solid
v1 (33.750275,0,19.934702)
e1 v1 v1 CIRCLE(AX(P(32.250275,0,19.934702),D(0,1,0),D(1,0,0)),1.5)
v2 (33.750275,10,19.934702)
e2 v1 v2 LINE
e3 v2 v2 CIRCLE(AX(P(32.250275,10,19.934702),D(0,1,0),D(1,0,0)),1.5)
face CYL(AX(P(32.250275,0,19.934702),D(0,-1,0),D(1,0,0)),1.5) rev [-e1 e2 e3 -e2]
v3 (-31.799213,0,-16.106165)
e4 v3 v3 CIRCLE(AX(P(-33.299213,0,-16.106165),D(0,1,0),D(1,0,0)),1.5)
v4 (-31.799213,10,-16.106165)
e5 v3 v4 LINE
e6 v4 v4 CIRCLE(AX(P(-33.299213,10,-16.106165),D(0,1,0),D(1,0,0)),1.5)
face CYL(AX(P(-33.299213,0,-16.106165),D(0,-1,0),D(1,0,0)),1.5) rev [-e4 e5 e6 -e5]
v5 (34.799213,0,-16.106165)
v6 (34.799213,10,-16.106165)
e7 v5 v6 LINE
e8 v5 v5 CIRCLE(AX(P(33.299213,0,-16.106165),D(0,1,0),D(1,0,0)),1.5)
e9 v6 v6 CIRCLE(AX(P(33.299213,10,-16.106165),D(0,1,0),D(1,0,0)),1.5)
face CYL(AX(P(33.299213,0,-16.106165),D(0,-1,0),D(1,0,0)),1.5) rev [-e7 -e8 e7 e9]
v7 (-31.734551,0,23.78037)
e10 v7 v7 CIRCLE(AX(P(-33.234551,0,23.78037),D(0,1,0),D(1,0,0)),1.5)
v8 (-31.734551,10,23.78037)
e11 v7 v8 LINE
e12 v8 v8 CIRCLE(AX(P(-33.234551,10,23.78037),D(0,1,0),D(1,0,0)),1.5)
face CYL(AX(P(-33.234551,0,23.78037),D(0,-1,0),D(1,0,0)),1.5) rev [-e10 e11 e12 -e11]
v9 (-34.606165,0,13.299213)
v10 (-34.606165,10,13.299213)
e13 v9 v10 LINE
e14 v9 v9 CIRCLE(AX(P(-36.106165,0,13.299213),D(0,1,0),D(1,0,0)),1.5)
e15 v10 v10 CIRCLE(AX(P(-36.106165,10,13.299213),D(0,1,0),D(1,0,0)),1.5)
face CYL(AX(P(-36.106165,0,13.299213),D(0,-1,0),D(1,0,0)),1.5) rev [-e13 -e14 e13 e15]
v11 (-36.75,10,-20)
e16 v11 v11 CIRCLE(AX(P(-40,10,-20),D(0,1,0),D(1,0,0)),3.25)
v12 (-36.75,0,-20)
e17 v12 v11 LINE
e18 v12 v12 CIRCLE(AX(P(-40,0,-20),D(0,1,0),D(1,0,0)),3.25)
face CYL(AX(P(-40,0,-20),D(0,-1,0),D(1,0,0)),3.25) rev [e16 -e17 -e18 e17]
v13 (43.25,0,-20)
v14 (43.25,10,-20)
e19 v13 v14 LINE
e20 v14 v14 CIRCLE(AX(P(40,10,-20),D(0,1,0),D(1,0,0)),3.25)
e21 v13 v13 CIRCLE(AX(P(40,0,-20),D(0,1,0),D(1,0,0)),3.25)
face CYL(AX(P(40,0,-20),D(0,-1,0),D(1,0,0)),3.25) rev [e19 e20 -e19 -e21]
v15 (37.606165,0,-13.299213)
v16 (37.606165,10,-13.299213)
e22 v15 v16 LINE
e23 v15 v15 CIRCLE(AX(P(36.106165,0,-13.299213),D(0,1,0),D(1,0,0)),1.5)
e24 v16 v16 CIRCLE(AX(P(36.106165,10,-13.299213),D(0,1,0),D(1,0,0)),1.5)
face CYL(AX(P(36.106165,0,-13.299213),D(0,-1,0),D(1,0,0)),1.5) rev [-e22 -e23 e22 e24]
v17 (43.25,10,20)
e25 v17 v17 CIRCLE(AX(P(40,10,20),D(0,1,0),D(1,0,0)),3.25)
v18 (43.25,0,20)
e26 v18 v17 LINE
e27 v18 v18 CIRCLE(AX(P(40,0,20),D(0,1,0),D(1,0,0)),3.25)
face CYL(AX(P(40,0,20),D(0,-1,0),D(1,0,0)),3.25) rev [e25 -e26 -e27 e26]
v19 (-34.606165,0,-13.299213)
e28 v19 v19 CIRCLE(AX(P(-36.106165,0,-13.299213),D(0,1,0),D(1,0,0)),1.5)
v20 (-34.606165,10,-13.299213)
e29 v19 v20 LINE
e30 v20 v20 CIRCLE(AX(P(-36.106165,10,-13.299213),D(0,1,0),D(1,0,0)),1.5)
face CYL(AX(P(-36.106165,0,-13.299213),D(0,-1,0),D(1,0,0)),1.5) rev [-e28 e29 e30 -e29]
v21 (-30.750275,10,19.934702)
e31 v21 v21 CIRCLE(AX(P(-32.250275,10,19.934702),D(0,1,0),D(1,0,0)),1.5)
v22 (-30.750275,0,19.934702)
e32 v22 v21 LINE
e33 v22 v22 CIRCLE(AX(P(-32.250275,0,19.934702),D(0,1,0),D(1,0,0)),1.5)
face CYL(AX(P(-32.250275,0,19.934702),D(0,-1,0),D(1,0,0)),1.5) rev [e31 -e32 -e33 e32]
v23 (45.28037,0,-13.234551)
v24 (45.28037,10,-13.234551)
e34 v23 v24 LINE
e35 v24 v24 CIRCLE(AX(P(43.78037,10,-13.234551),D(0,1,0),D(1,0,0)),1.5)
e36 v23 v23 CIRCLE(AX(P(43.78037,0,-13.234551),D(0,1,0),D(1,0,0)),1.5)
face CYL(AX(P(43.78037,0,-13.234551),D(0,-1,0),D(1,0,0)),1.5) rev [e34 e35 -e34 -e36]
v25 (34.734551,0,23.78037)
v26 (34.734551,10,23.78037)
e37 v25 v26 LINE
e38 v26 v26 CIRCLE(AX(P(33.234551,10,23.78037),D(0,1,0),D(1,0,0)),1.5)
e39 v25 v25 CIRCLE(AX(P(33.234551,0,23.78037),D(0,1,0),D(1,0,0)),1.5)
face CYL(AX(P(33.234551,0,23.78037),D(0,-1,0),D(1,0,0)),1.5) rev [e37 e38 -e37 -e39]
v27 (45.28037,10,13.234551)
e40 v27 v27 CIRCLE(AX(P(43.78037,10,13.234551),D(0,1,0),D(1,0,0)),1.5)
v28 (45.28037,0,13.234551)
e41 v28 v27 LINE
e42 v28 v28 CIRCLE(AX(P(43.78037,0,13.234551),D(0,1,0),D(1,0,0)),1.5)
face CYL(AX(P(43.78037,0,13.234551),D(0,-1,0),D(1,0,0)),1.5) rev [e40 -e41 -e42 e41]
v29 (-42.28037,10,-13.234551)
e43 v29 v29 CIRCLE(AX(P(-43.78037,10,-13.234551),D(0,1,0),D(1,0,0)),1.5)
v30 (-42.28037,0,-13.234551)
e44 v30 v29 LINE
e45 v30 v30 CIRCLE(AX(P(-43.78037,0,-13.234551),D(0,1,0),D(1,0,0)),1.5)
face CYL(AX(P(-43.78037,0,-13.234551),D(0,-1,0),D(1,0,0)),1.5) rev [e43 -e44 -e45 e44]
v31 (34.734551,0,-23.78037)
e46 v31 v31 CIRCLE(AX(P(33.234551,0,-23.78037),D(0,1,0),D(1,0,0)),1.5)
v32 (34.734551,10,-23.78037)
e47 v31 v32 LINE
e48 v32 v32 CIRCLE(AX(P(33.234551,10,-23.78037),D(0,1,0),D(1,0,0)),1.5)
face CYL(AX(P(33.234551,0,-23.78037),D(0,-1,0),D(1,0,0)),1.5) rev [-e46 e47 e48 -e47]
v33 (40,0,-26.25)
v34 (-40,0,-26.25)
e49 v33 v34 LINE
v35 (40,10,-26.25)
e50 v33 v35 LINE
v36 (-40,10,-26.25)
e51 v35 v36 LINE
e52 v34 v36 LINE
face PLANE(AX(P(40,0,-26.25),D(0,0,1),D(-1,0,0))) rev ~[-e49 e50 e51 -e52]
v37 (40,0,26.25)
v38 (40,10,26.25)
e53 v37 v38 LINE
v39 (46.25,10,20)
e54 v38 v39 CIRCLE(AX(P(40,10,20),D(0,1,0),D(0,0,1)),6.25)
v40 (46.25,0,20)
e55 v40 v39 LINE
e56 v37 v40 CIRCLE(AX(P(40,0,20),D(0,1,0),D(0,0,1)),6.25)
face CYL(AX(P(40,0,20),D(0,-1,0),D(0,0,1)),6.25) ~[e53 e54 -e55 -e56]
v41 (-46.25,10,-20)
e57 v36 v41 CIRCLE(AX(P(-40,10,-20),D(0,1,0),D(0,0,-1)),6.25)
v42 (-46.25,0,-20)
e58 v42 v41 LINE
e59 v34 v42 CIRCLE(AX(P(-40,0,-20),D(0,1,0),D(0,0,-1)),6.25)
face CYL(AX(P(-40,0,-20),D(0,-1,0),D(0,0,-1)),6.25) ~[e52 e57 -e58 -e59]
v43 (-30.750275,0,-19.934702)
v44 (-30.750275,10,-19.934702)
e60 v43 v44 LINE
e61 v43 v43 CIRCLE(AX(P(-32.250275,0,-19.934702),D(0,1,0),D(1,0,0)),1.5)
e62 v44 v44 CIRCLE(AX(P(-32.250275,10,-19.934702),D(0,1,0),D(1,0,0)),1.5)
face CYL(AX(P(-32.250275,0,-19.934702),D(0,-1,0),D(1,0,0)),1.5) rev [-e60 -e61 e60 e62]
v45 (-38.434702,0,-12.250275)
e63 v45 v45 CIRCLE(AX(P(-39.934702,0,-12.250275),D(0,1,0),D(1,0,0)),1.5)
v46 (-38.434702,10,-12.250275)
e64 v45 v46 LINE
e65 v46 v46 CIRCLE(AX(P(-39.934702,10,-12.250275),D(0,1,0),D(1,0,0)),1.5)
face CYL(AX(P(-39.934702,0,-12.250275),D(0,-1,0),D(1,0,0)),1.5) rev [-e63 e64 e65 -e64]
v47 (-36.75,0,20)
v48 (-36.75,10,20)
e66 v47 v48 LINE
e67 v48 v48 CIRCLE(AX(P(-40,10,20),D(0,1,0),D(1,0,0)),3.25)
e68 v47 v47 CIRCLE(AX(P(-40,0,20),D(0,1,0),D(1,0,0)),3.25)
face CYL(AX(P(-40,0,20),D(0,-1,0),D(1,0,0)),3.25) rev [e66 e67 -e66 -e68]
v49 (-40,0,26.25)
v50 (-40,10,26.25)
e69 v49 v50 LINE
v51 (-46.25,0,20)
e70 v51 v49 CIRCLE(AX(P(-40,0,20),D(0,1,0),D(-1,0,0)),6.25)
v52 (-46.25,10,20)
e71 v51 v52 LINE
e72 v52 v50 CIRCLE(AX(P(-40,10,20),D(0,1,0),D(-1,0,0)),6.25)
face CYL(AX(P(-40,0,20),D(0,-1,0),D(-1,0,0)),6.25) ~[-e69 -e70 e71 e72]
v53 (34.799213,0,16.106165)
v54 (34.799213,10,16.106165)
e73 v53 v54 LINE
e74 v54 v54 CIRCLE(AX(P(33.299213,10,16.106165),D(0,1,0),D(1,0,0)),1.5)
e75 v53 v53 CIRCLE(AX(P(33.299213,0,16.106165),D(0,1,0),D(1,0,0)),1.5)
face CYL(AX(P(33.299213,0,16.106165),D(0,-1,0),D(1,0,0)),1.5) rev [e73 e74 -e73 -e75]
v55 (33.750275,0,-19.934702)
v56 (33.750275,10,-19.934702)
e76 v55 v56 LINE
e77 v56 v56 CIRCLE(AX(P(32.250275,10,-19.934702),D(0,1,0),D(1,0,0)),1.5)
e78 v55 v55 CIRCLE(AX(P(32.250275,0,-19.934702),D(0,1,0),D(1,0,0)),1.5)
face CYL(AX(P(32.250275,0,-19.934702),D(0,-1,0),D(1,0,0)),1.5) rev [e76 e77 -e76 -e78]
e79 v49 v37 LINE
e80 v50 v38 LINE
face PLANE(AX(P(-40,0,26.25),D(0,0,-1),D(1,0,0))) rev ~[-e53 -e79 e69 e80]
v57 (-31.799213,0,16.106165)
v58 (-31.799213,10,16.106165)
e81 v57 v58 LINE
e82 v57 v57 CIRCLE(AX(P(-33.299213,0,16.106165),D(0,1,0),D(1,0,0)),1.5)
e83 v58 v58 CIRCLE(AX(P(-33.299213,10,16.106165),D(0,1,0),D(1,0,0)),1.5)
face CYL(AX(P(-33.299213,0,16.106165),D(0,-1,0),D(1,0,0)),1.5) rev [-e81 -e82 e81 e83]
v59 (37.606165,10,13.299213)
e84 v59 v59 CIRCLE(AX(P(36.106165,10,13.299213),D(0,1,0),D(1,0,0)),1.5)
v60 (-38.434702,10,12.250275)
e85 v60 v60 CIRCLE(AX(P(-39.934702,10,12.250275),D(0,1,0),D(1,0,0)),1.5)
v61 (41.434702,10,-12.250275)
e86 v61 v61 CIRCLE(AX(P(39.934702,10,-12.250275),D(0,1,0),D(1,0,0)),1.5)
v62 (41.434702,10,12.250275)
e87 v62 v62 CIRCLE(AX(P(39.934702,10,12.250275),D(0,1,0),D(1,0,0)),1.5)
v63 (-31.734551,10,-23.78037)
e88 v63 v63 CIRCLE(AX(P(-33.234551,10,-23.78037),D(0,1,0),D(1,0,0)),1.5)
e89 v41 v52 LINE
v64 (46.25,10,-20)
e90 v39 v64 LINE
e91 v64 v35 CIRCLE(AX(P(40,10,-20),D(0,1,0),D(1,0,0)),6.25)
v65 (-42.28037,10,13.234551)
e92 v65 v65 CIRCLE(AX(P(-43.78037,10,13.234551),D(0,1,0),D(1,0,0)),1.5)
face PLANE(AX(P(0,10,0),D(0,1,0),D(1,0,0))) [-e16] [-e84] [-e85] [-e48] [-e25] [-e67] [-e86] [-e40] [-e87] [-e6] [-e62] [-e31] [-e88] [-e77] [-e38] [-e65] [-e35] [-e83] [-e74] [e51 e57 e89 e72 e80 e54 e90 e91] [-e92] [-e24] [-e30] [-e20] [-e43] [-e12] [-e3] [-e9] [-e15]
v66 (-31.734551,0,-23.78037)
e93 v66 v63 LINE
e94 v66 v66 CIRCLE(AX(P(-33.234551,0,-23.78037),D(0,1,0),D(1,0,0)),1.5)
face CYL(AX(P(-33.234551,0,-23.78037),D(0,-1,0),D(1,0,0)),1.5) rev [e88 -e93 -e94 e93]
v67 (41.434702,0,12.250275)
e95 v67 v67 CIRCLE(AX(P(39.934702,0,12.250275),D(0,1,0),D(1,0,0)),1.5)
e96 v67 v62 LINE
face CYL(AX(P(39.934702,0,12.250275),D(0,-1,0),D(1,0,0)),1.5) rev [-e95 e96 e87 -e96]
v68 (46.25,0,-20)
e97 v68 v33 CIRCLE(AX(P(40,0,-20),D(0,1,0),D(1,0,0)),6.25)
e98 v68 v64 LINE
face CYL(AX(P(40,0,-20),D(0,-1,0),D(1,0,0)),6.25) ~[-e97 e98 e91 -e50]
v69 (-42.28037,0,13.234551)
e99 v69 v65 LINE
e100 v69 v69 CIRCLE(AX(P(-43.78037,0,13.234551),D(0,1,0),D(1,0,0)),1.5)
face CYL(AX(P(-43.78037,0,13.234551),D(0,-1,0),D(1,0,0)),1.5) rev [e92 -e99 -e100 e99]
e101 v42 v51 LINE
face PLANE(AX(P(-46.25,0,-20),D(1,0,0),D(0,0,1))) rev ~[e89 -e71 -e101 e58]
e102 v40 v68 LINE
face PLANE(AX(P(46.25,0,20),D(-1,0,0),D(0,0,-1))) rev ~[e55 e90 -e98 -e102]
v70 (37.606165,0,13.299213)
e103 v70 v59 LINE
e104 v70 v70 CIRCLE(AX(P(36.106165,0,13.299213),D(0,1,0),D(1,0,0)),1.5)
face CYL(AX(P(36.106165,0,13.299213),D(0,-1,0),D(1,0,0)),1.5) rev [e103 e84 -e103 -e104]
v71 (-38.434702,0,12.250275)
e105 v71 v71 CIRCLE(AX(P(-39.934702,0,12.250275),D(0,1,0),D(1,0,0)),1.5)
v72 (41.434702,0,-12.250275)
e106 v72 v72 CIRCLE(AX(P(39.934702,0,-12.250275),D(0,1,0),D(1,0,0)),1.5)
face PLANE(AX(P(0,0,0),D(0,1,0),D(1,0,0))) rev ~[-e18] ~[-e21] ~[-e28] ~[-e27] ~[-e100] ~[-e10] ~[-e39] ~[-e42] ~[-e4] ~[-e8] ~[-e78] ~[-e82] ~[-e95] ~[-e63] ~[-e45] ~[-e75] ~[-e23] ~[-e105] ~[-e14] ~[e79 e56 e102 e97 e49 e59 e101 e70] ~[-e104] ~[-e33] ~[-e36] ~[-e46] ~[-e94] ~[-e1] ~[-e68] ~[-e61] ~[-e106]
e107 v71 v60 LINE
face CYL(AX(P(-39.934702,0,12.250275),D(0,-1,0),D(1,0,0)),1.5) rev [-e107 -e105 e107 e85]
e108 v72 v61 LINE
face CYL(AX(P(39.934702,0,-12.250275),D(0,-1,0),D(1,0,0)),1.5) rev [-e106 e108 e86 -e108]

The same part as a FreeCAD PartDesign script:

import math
import FreeCAD as App
import Part
import Sketcher

V = App.Vector

doc = App.newDocument("Part")
body = doc.addObject("PartDesign::Body", "Body")

# Sketch on XZ plane
sketch1 = body.newObject("Sketcher::SketchObject", "Sketch")
sketch1.AttachmentSupport = (doc.getObject("XZ_Plane"), [""])
sketch1.MapMode = "FlatFace"
sketch1.addGeometry(Part.LineSegment(V(-40, 26.2, 0), V(40, 26.2, 0)), False)
sketch1.addGeometry(Part.ArcOfCircle(Part.Circle(V(40, 20, 0), V(0, 0, 1), 6.3), math.radians(0), math.radians(90)), False)
sketch1.addGeometry(Part.LineSegment(V(46.2, 20, 0), V(46.2, -20, 0)), False)
sketch1.addGeometry(Part.ArcOfCircle(Part.Circle(V(40, -20, 0), V(0, 0, 1), 6.3), math.radians(-90), math.radians(0)), False)
sketch1.addGeometry(Part.LineSegment(V(40, -26.2, 0), V(-40, -26.2, 0)), False)
sketch1.addGeometry(Part.ArcOfCircle(Part.Circle(V(-40, -20, 0), V(0, 0, 1), 6.3), math.radians(-180), math.radians(-90)), False)
sketch1.addGeometry(Part.LineSegment(V(-46.2, -20, 0), V(-46.2, 20, 0)), False)
sketch1.addGeometry(Part.ArcOfCircle(Part.Circle(V(-40, 20, 0), V(0, 0, 1), 6.3), math.radians(90), math.radians(180)), False)
sketch1.addGeometry(Part.Circle(V(-40, 20, 0), V(0, 0, 1), 3.2), False)
sketch1.addGeometry(Part.Circle(V(-33.2, 23.8, 0), V(0, 0, 1), 1.5), False)
sketch1.addGeometry(Part.Circle(V(-32.3, 19.9, 0), V(0, 0, 1), 1.5), False)
sketch1.addGeometry(Part.Circle(V(-43.8, 13.2, 0), V(0, 0, 1), 1.5), False)
sketch1.addGeometry(Part.Circle(V(-36.1, 13.3, 0), V(0, 0, 1), 1.5), False)
sketch1.addGeometry(Part.Circle(V(-33.3, 16.1, 0), V(0, 0, 1), 1.5), False)
sketch1.addGeometry(Part.Circle(V(-39.9, 12.3, 0), V(0, 0, 1), 1.5), False)
sketch1.addGeometry(Part.Circle(V(33.2, 23.8, 0), V(0, 0, 1), 1.5), False)
sketch1.addGeometry(Part.Circle(V(32.3, 19.9, 0), V(0, 0, 1), 1.5), False)
sketch1.addGeometry(Part.Circle(V(40, 20, 0), V(0, 0, 1), 3.2), False)
sketch1.addGeometry(Part.Circle(V(33.3, 16.1, 0), V(0, 0, 1), 1.5), False)
sketch1.addGeometry(Part.Circle(V(36.1, 13.3, 0), V(0, 0, 1), 1.5), False)
sketch1.addGeometry(Part.Circle(V(43.8, 13.2, 0), V(0, 0, 1), 1.5), False)
sketch1.addGeometry(Part.Circle(V(39.9, 12.3, 0), V(0, 0, 1), 1.5), False)
sketch1.addGeometry(Part.Circle(V(-39.9, -12.3, 0), V(0, 0, 1), 1.5), False)
sketch1.addGeometry(Part.Circle(V(-43.8, -13.2, 0), V(0, 0, 1), 1.5), False)
sketch1.addGeometry(Part.Circle(V(-36.1, -13.3, 0), V(0, 0, 1), 1.5), False)
sketch1.addGeometry(Part.Circle(V(-33.3, -16.1, 0), V(0, 0, 1), 1.5), False)
sketch1.addGeometry(Part.Circle(V(-40, -20, 0), V(0, 0, 1), 3.2), False)
sketch1.addGeometry(Part.Circle(V(-32.3, -19.9, 0), V(0, 0, 1), 1.5), False)
sketch1.addGeometry(Part.Circle(V(-33.2, -23.8, 0), V(0, 0, 1), 1.5), False)
sketch1.addGeometry(Part.Circle(V(39.9, -12.3, 0), V(0, 0, 1), 1.5), False)
sketch1.addGeometry(Part.Circle(V(33.3, -16.1, 0), V(0, 0, 1), 1.5), False)
sketch1.addGeometry(Part.Circle(V(36.1, -13.3, 0), V(0, 0, 1), 1.5), False)
sketch1.addGeometry(Part.Circle(V(43.8, -13.2, 0), V(0, 0, 1), 1.5), False)
sketch1.addGeometry(Part.Circle(V(32.3, -19.9, 0), V(0, 0, 1), 1.5), False)
sketch1.addGeometry(Part.Circle(V(33.2, -23.8, 0), V(0, 0, 1), 1.5), False)
sketch1.addGeometry(Part.Circle(V(40, -20, 0), V(0, 0, 1), 3.2), False)
sketch1.addConstraint(Sketcher.Constraint("Tangent", 0, 2, 1, 2))
sketch1.addConstraint(Sketcher.Constraint("Tangent", 1, 1, 2, 1))
sketch1.addConstraint(Sketcher.Constraint("Tangent", 2, 2, 3, 2))
sketch1.addConstraint(Sketcher.Constraint("Tangent", 3, 1, 4, 1))
sketch1.addConstraint(Sketcher.Constraint("Tangent", 4, 2, 5, 2))
sketch1.addConstraint(Sketcher.Constraint("Tangent", 5, 1, 6, 1))
sketch1.addConstraint(Sketcher.Constraint("Tangent", 6, 2, 7, 2))
sketch1.addConstraint(Sketcher.Constraint("Tangent", 7, 1, 0, 1))
sketch1.addConstraint(Sketcher.Constraint("Horizontal", 0))
sketch1.addConstraint(Sketcher.Constraint("Vertical", 2))
sketch1.addConstraint(Sketcher.Constraint("Horizontal", 4))
sketch1.addConstraint(Sketcher.Constraint("Vertical", 6))
sketch1.addConstraint(Sketcher.Constraint("Coincident", 8, 3, 7, 3))
sketch1.addConstraint(Sketcher.Constraint("Coincident", 17, 3, 1, 3))
sketch1.addConstraint(Sketcher.Constraint("Coincident", 26, 3, 5, 3))
sketch1.addConstraint(Sketcher.Constraint("Coincident", 35, 3, 3, 3))
sketch1.addConstraint(Sketcher.Constraint("Equal", 1, 3))
sketch1.addConstraint(Sketcher.Constraint("Equal", 3, 5))
sketch1.addConstraint(Sketcher.Constraint("Equal", 5, 7))
sketch1.addConstraint(Sketcher.Constraint("Equal", 9, 10))
sketch1.addConstraint(Sketcher.Constraint("Equal", 10, 11))
sketch1.addConstraint(Sketcher.Constraint("Equal", 11, 12))
sketch1.addConstraint(Sketcher.Constraint("Equal", 12, 13))
sketch1.addConstraint(Sketcher.Constraint("Equal", 13, 14))
sketch1.addConstraint(Sketcher.Constraint("Equal", 14, 15))
sketch1.addConstraint(Sketcher.Constraint("Equal", 15, 16))
sketch1.addConstraint(Sketcher.Constraint("Equal", 8, 17))
sketch1.addConstraint(Sketcher.Constraint("Equal", 16, 18))
sketch1.addConstraint(Sketcher.Constraint("Equal", 18, 19))
sketch1.addConstraint(Sketcher.Constraint("Equal", 19, 20))
sketch1.addConstraint(Sketcher.Constraint("Equal", 20, 21))
sketch1.addConstraint(Sketcher.Constraint("Equal", 21, 22))
sketch1.addConstraint(Sketcher.Constraint("Equal", 22, 23))
sketch1.addConstraint(Sketcher.Constraint("Equal", 23, 24))
sketch1.addConstraint(Sketcher.Constraint("Equal", 24, 25))
sketch1.addConstraint(Sketcher.Constraint("Equal", 17, 26))
sketch1.addConstraint(Sketcher.Constraint("Equal", 25, 27))
sketch1.addConstraint(Sketcher.Constraint("Equal", 27, 28))
sketch1.addConstraint(Sketcher.Constraint("Equal", 28, 29))
sketch1.addConstraint(Sketcher.Constraint("Equal", 29, 30))
sketch1.addConstraint(Sketcher.Constraint("Equal", 30, 31))
sketch1.addConstraint(Sketcher.Constraint("Equal", 31, 32))
sketch1.addConstraint(Sketcher.Constraint("Equal", 32, 33))
sketch1.addConstraint(Sketcher.Constraint("Equal", 33, 34))
sketch1.addConstraint(Sketcher.Constraint("Equal", 26, 35))
sketch1.addConstraint(Sketcher.Constraint("Symmetric", 1, 3, 5, 3, -1, 1))
sketch1.addConstraint(Sketcher.Constraint("Symmetric", 21, 3, 22, 3, -1, 1))
sketch1.addConstraint(Sketcher.Constraint("Symmetric", 20, 3, 23, 3, -1, 1))
sketch1.addConstraint(Sketcher.Constraint("Symmetric", 19, 3, 24, 3, -1, 1))
sketch1.addConstraint(Sketcher.Constraint("Symmetric", 18, 3, 25, 3, -1, 1))
sketch1.addConstraint(Sketcher.Constraint("Symmetric", 16, 3, 27, 3, -1, 1))
sketch1.addConstraint(Sketcher.Constraint("Symmetric", 15, 3, 28, 3, -1, 1))
sketch1.addConstraint(Sketcher.Constraint("Symmetric", 14, 3, 29, 3, -1, 1))
sketch1.addConstraint(Sketcher.Constraint("Symmetric", 13, 3, 30, 3, -1, 1))
sketch1.addConstraint(Sketcher.Constraint("Symmetric", 12, 3, 31, 3, -1, 1))
sketch1.addConstraint(Sketcher.Constraint("Symmetric", 11, 3, 32, 3, -1, 1))
sketch1.addConstraint(Sketcher.Constraint("Symmetric", 10, 3, 33, 3, -1, 1))
sketch1.addConstraint(Sketcher.Constraint("Symmetric", 9, 3, 34, 3, -1, 1))
sketch1.addConstraint(Sketcher.Constraint("Symmetric", 9, 3, 15, 3, -2))
sketch1.addConstraint(Sketcher.Constraint("Symmetric", 10, 3, 16, 3, -2))
sketch1.addConstraint(Sketcher.Constraint("Symmetric", 13, 3, 18, 3, -2))
sketch1.addConstraint(Sketcher.Constraint("Symmetric", 12, 3, 19, 3, -2))
sketch1.addConstraint(Sketcher.Constraint("Symmetric", 11, 3, 20, 3, -2))
sketch1.addConstraint(Sketcher.Constraint("Symmetric", 14, 3, 21, 3, -2))
sketch1.addConstraint(Sketcher.Constraint("Diameter", 9, 3.0))
sketch1.addConstraint(Sketcher.Constraint("Diameter", 8, 6.5))
sketch1.addConstraint(Sketcher.Constraint("DistanceX", 0, 1, 0, 2, 80.0))
sketch1.addConstraint(Sketcher.Constraint("DistanceY", 2, 2, 2, 1, 40.0))
sketch1.addConstraint(Sketcher.Constraint("Radius", 1, 6.25))
sketch1.addConstraint(Sketcher.Constraint("DistanceY", -1, 1, 10, 3, 19.934702))
sketch1.addConstraint(Sketcher.Constraint("DistanceX", 14, 3, -1, 1, 39.934702))
sketch1.addConstraint(Sketcher.Constraint("DistanceX", 9, 3, 15, 3, 66.469102))
sketch1.addConstraint(Sketcher.Constraint("DistanceY", 23, 3, 11, 3, 26.469102))
sketch1.addConstraint(Sketcher.Constraint("DistanceY", -1, 1, 9, 3, 23.78037))
sketch1.addConstraint(Sketcher.Constraint("DistanceX", 11, 3, -1, 1, 43.78037))
sketch1.addConstraint(Sketcher.Constraint("DistanceX", 12, 3, 10, 3, 3.85589))
sketch1.addConstraint(Sketcher.Constraint("DistanceY", 12, 3, 10, 3, 6.635489))
sketch1.addConstraint(Sketcher.Constraint("DistanceX", 13, 3, 9, 3, 0.064662))
sketch1.addConstraint(Sketcher.Constraint("DistanceY", 14, 3, 13, 3, 3.85589))
sketch1.addConstraint(Sketcher.Constraint("DistanceX", 10, 3, 16, 3, 64.50055))
sketch1.addConstraint(Sketcher.Constraint("DistanceY", 22, 3, 14, 3, 24.50055))
pad1 = body.newObject("PartDesign::Pad", "Pad")
pad1.Profile = sketch1
pad1.Length = 10
pad1.Reversed = True

doc.recompute()
